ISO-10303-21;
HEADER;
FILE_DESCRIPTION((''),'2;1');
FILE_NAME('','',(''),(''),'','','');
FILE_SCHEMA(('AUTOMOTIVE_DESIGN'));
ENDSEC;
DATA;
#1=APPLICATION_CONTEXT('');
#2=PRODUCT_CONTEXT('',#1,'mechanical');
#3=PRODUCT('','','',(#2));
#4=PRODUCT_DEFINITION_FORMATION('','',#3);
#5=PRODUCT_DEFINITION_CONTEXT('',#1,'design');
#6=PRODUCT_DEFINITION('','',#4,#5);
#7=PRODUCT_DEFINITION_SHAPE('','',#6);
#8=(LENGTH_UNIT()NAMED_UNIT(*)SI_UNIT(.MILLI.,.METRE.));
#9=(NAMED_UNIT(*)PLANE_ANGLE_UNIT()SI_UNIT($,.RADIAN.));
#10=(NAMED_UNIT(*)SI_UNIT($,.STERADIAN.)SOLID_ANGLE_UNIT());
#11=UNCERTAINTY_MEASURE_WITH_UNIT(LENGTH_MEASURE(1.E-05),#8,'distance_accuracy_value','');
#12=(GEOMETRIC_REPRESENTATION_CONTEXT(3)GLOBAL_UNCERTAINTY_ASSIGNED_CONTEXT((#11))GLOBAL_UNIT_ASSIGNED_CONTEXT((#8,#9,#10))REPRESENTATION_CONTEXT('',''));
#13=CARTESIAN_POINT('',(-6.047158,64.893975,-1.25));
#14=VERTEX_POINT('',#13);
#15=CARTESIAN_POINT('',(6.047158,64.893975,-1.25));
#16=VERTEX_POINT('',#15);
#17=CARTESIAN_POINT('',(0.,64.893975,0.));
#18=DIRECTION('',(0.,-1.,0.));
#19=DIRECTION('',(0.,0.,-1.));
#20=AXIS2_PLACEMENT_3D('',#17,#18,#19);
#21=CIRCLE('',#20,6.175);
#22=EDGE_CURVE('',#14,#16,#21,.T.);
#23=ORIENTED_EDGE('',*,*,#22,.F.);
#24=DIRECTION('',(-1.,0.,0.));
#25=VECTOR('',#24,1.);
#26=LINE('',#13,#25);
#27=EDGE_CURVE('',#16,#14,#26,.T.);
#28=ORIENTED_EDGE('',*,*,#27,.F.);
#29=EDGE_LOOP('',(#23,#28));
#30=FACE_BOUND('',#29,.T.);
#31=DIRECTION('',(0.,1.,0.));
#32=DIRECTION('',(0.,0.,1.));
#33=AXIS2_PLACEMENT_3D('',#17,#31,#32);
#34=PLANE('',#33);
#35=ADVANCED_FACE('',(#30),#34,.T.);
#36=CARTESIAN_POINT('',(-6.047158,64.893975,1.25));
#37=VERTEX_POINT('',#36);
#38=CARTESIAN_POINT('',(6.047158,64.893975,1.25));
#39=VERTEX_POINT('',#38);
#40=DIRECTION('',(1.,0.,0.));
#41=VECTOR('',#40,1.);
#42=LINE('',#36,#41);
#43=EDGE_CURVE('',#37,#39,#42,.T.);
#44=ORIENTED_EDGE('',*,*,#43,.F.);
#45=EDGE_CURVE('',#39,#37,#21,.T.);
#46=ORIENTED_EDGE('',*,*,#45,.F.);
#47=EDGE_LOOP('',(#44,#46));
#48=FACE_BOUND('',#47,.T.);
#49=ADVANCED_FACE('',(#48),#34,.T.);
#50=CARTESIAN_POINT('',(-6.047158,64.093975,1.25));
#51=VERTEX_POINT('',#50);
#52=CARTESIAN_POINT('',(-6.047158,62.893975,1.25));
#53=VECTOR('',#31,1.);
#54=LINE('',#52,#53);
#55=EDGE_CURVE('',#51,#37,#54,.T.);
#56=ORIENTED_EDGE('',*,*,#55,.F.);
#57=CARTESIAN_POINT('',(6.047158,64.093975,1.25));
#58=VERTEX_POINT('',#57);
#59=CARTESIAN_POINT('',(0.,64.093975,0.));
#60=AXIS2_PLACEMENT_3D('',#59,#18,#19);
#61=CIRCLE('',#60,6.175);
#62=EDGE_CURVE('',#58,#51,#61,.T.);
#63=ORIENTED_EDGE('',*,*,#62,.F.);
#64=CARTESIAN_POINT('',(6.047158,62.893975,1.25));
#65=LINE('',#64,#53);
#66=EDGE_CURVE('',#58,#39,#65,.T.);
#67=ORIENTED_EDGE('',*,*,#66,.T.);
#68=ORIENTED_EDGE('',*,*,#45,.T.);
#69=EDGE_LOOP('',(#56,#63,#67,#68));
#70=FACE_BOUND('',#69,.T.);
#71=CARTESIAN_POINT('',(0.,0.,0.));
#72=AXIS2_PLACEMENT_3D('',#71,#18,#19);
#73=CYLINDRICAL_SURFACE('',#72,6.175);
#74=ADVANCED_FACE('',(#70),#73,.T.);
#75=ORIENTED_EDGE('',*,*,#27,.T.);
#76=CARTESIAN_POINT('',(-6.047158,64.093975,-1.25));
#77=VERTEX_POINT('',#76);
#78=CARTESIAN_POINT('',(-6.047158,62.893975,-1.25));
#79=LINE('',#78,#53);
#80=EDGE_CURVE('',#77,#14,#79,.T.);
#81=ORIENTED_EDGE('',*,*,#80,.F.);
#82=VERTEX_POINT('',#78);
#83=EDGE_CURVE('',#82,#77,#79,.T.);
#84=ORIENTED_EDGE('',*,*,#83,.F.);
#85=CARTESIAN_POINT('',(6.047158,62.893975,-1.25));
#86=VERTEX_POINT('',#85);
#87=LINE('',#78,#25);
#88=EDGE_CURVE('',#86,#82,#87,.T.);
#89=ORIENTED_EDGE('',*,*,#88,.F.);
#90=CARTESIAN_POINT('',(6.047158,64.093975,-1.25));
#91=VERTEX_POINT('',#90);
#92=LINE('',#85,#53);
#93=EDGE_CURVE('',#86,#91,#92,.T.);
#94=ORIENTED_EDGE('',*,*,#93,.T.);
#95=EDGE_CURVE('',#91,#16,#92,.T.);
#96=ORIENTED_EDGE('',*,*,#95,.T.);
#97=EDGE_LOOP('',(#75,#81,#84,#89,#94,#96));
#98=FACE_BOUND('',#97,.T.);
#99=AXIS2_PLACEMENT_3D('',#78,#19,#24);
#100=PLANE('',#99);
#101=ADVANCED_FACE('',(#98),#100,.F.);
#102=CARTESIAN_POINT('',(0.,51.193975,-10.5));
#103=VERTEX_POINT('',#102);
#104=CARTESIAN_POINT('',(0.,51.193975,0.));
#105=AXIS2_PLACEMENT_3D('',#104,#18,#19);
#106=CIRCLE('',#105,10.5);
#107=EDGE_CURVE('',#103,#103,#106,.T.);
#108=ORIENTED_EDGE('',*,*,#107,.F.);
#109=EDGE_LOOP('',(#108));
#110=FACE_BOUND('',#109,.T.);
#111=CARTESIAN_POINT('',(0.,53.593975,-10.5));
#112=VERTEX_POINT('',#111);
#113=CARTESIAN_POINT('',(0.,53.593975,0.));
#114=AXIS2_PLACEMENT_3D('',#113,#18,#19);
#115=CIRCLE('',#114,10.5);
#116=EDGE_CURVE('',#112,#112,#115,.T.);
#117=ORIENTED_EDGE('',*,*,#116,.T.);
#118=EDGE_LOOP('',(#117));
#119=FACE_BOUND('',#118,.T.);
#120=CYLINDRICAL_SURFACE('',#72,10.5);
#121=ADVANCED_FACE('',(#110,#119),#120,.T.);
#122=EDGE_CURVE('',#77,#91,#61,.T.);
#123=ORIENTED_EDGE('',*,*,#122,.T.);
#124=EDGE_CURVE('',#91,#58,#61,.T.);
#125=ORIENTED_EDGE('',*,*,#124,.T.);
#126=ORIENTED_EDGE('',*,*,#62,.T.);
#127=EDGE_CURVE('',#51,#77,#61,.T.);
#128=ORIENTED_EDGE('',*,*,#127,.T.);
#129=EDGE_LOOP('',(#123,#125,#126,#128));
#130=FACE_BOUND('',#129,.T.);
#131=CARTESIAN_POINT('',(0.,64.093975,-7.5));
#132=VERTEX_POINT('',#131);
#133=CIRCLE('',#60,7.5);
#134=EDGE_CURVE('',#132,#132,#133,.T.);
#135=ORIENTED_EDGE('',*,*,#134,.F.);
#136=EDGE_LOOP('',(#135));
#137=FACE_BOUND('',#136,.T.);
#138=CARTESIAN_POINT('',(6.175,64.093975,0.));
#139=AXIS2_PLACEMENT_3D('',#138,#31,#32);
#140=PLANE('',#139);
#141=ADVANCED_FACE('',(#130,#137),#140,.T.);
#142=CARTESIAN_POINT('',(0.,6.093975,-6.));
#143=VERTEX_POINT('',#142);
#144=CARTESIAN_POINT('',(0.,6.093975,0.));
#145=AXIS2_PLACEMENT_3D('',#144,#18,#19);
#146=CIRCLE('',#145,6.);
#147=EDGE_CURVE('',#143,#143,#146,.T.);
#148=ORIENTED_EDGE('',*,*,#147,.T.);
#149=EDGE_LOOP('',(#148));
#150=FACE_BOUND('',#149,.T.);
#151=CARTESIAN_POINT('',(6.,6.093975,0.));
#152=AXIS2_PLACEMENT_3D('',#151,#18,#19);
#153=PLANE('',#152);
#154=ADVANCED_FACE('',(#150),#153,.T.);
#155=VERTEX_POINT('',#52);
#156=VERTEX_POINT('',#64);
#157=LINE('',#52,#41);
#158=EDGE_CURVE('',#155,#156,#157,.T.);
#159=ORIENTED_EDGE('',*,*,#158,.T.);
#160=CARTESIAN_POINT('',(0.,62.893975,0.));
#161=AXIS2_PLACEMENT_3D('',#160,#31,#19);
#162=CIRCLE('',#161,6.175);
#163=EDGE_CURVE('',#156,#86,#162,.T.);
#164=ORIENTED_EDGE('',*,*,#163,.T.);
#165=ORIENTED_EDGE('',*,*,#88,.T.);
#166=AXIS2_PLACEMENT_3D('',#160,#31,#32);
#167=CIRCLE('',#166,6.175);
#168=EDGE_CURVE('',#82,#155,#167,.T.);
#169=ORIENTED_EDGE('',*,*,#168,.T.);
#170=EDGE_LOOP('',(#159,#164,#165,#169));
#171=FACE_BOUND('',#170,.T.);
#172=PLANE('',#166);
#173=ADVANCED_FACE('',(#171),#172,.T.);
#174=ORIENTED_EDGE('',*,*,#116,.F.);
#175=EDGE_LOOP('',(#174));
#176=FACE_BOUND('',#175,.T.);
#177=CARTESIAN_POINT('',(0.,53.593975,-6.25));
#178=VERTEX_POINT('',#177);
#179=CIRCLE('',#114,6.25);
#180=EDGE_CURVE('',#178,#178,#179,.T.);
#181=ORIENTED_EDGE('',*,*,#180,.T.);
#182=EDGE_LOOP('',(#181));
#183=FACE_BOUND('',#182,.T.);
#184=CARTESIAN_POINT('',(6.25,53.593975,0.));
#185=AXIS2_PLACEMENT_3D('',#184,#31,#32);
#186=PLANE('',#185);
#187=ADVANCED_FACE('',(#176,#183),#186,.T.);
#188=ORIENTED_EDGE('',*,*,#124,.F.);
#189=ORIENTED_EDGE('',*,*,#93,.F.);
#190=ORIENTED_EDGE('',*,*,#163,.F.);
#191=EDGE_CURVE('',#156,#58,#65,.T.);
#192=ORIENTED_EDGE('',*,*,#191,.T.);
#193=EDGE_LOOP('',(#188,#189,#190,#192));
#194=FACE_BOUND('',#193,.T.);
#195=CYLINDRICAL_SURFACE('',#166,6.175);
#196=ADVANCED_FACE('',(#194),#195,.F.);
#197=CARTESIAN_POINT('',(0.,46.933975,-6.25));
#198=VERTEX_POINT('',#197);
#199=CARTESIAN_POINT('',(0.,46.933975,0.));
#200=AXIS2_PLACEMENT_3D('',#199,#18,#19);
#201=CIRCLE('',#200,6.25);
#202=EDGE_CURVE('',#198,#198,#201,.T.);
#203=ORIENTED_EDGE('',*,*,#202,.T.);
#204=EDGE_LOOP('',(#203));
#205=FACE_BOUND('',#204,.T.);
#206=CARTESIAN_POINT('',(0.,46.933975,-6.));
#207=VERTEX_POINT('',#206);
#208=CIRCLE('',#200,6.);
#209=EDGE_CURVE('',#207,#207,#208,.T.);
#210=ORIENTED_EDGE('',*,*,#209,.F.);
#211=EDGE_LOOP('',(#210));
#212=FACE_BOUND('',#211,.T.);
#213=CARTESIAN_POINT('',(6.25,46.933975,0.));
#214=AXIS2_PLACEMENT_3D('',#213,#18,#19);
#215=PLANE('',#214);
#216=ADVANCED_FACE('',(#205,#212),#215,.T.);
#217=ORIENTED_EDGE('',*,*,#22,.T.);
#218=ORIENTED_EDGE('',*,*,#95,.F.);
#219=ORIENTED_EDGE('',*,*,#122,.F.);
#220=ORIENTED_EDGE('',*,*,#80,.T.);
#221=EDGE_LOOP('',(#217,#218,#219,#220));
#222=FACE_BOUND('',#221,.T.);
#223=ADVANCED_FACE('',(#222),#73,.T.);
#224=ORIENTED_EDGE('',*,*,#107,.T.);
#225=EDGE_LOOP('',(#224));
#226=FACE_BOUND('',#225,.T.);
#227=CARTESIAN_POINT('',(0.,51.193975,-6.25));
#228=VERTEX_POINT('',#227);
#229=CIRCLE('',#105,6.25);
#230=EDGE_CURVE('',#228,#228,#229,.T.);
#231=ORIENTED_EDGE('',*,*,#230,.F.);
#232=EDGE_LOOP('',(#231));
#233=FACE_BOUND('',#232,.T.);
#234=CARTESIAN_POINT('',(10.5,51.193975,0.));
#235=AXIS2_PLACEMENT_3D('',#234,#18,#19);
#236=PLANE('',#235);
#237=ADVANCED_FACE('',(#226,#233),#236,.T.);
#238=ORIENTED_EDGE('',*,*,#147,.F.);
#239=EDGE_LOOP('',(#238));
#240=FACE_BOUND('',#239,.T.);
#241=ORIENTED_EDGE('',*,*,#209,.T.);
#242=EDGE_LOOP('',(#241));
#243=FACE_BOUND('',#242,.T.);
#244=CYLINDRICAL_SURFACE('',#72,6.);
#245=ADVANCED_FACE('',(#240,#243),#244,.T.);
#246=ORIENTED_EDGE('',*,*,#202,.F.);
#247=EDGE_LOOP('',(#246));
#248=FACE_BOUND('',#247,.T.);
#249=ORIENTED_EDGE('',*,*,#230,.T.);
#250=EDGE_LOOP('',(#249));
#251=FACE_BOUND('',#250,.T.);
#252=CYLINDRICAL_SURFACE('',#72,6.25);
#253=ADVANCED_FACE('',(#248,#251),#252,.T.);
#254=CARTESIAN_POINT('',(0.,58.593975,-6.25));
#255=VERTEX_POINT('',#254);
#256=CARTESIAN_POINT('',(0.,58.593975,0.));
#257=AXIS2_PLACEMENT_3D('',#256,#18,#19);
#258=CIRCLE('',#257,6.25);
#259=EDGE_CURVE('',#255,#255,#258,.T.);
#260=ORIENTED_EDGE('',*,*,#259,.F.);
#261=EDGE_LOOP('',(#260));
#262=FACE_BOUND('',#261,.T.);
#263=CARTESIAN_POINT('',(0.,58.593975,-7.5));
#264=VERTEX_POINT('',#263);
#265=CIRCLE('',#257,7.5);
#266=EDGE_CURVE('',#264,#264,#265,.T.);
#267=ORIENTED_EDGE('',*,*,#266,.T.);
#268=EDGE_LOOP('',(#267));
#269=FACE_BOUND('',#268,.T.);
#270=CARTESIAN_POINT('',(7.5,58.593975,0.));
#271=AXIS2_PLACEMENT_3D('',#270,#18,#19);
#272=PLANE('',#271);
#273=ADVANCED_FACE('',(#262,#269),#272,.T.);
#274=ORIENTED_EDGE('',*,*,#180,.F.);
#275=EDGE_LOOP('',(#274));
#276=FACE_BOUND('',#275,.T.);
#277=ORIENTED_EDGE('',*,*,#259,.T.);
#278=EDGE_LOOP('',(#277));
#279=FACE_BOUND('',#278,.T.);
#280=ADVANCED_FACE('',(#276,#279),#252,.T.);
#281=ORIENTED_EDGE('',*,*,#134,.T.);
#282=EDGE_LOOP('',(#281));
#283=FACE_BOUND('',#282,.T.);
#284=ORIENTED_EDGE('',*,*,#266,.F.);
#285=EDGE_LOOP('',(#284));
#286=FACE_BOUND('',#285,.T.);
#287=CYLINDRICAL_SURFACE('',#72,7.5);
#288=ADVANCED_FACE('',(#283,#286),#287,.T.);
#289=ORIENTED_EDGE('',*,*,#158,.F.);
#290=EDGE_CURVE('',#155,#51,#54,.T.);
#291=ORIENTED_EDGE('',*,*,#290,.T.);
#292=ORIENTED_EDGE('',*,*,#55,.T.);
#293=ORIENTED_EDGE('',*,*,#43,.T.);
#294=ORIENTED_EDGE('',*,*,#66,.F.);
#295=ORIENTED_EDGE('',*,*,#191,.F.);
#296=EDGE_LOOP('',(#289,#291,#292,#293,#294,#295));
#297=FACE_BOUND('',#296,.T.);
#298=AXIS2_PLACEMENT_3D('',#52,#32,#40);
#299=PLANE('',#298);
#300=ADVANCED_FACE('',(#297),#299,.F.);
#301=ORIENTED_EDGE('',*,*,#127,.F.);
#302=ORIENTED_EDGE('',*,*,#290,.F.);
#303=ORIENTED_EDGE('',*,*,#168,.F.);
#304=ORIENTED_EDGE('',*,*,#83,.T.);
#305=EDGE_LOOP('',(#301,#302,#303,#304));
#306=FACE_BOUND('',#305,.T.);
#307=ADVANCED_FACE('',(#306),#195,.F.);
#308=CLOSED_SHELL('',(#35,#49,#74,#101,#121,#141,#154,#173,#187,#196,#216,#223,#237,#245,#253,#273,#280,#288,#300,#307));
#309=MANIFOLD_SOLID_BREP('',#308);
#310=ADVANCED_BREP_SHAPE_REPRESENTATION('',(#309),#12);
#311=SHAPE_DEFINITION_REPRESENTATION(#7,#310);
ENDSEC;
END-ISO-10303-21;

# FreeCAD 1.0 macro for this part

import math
import FreeCAD as App
import Part
import Sketcher


def add_polygon(sketch, points):
    """Adds a closed chain of lines whose ends are joined by coincident constraints."""
    first, n = sketch.GeometryCount, len(points)
    for a, b in zip(points, points[1:] + points[:1]):
        sketch.addGeometry(Part.LineSegment(App.Vector(*a, 0), App.Vector(*b, 0)), False)
    for i in range(n):
        sketch.addConstraint(Sketcher.Constraint("Coincident", first + i, 2, first + (i + 1) % n, 1))

doc = App.newDocument("Part")
body = doc.addObject("PartDesign::Body", "Body")

# Sketch on XY plane
sketch1 = body.newObject("Sketcher::SketchObject", "Sketch")
sketch1.AttachmentSupport = (doc.getObject("XY_Plane"), [""])
sketch1.MapMode = "FlatFace"
add_polygon(sketch1, [(6.175, 64.893975), (0, 64.893975), (0, 6.093975), (6, 6.093975), (6, 46.933975), (6.25, 46.933975), (6.25, 51.193975), (10.5, 51.193975), (10.5, 53.593975), (6.25, 53.593975), (6.25, 58.593975), (7.5, 58.593975), (7.5, 64.093975), (6.175, 64.093975)])  # lines 0-13
sketch1.addConstraint([
    Sketcher.Constraint("Horizontal", 0),
    Sketcher.Constraint("Vertical", 1),
    Sketcher.Constraint("Horizontal", 2),
    Sketcher.Constraint("Vertical", 3),
    Sketcher.Constraint("Horizontal", 4),
    Sketcher.Constraint("Vertical", 5),
    Sketcher.Constraint("Horizontal", 6),
    Sketcher.Constraint("Vertical", 7),
    Sketcher.Constraint("Horizontal", 8),
    Sketcher.Constraint("Vertical", 9),
    Sketcher.Constraint("Horizontal", 10),
    Sketcher.Constraint("Vertical", 11),
    Sketcher.Constraint("Horizontal", 12),
    Sketcher.Constraint("Vertical", 13),
    Sketcher.Constraint("PointOnObject", 0, 2, -2),
    Sketcher.Constraint("Vertical", 5, 2, 8, 2),
    Sketcher.Constraint("DistanceX", 2, 1, 2, 2, 6.0),
    Sketcher.Constraint("DistanceY", 9, 1, 9, 2, 5.0),
    Sketcher.Constraint("DistanceY", 1, 2, 1, 1, 58.8),
    Sketcher.Constraint("DistanceY", 7, 1, 7, 2, 2.4),
    Sketcher.Constraint("DistanceY", 11, 1, 11, 2, 5.5),
    Sketcher.Constraint("DistanceY", 13, 1, 13, 2, 0.8),
    Sketcher.Constraint("DistanceX", 10, 2, 7, 2, 3.0),
    Sketcher.Constraint("DistanceX", 4, 1, 4, 2, 0.25),
    Sketcher.Constraint("DistanceX", 6, 1, 6, 2, 4.25),
    Sketcher.Constraint("DistanceY", 3, 1, 3, 2, 40.84),
    Sketcher.Constraint("DistanceX", 0, 2, 0, 1, 6.175),
    Sketcher.Constraint("DistanceY", -1, 1, 0, 2, 64.893975),
])
revolution = body.newObject("PartDesign::Revolution", "Revolution")
revolution.Profile = sketch1
revolution.ReferenceAxis = (sketch1, ["V_Axis"])
revolution.Angle = 360

# Sketch on XZ plane
sketch2 = body.newObject("Sketcher::SketchObject", "Sketch001")
sketch2.AttachmentSupport = (doc.getObject("XZ_Plane"), [""])
sketch2.MapMode = "FlatFace"
sketch2.AttachmentOffset = App.Placement(App.Vector(0, 0, -62.893975), App.Rotation())
sketch2.addGeometry([
    Part.LineSegment(App.Vector(6.047158, -1.25, 0), App.Vector(-6.047158, -1.25, 0)),
    Part.ArcOfCircle(Part.Circle(App.Vector(0, 0, 0), App.Vector(0, 0, 1), 6.175), math.radians(168.320955), math.radians(191.679045)),
    Part.LineSegment(App.Vector(-6.047158, 1.25, 0), App.Vector(6.047158, 1.25, 0)),
    Part.ArcOfCircle(Part.Circle(App.Vector(0, 0, 0), App.Vector(0, 0, 1), 6.175), math.radians(-11.679045), math.radians(11.679045)),
], False)
sketch2.addConstraint([
    Sketcher.Constraint("Coincident", 0, 2, 1, 2),
    Sketcher.Constraint("Coincident", 1, 1, 2, 1),
    Sketcher.Constraint("Coincident", 2, 2, 3, 2),
    Sketcher.Constraint("Coincident", 3, 1, 0, 1),
    Sketcher.Constraint("Horizontal", 0),
    Sketcher.Constraint("Horizontal", 2),
    Sketcher.Constraint("Coincident", 1, 3, -1, 1),
    Sketcher.Constraint("Coincident", 3, 3, -1, 1),
    Sketcher.Constraint("Equal", 1, 3),
    Sketcher.Constraint("Vertical", 0, 2, 1, 1),
    Sketcher.Constraint("Radius", 1, 6.175),
    Sketcher.Constraint("DistanceY", 0, 2, 1, 1, 2.5),
])
pocket1 = body.newObject("PartDesign::Pocket", "Pocket")
pocket1.Profile = sketch2
pocket1.Length = 2

doc.recompute()
